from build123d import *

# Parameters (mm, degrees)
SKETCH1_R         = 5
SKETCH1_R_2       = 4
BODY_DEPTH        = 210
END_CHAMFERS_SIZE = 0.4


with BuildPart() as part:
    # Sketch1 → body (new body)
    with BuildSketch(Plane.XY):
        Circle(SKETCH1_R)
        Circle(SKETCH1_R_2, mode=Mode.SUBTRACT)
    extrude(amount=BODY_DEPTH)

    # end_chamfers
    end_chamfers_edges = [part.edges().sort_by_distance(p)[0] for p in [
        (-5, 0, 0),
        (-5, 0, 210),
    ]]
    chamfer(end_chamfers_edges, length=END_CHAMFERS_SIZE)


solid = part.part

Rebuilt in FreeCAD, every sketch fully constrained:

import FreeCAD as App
import Part
import Sketcher

V = App.Vector


def edges_at(feature, points):
    """Names of the edges that pass closest to the given points."""
    edges = feature.Shape.Edges
    near = lambda p: min(range(len(edges)), key=lambda i: edges[i].distToShape(Part.Vertex(*p))[0])
    return sorted({f"Edge{near(p) + 1}" for p in points})

doc = App.newDocument("Part")
body = doc.addObject("PartDesign::Body", "Body")

sketch1 = body.newObject("Sketcher::SketchObject", "Sketch")
sketch1.AttachmentSupport = (doc.getObject("XY_Plane"), [""])
sketch1.MapMode = "FlatFace"
sketch1.addGeometry(Part.Circle(V(0, 0, 0), V(0, 0, 1), 5), False)
sketch1.addGeometry(Part.Circle(V(0, 0, 0), V(0, 0, 1), 4), False)
sketch1.addConstraint(Sketcher.Constraint("Coincident", 0, 3, -1, 1))
sketch1.addConstraint(Sketcher.Constraint("Coincident", 1, 3, -1, 1))
sketch1.addConstraint(Sketcher.Constraint("Diameter", 0, 10.0))
sketch1.addConstraint(Sketcher.Constraint("Diameter", 1, 8.0))
pad1 = body.newObject("PartDesign::Pad", "Pad")
pad1.Profile = sketch1
pad1.Length = 210
doc.recompute()

chamfer = body.newObject("PartDesign::Chamfer", "Chamfer")
chamfer.Base = (pad1, edges_at(pad1, [(-5, 0, 0), (-5, 0, 210)]))
chamfer.Size = 0.4

doc.recompute()
